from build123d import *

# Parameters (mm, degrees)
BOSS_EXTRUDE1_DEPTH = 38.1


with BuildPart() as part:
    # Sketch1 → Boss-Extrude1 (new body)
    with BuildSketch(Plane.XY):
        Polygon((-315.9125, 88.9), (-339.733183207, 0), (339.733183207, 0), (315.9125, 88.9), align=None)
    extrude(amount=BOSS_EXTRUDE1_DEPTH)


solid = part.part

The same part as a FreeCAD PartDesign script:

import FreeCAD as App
import Part
import Sketcher

V = App.Vector
Q = App.Units.Quantity


def add_polygon(sketch, points):
    """Adds a closed chain of lines whose ends are joined by coincident constraints."""
    first, n = sketch.GeometryCount, len(points)
    for a, b in zip(points, points[1:] + points[:1]):
        sketch.addGeometry(Part.LineSegment(App.Vector(*a, 0), App.Vector(*b, 0)), False)
    for i in range(n):
        sketch.addConstraint(Sketcher.Constraint("Coincident", first + i, 2, first + (i + 1) % n, 1))

doc = App.newDocument("Part")
body = doc.addObject("PartDesign::Body", "Body")

# Sketch on XY plane
sketch1 = body.newObject("Sketcher::SketchObject", "Sketch")
sketch1.AttachmentSupport = (doc.getObject("XY_Plane"), [""])
sketch1.MapMode = "FlatFace"
add_polygon(sketch1, [(-316, 89), (-340, 0), (340, 0), (316, 89)])  # lines 0-3
sketch1.addConstraint([
    Sketcher.Constraint("Horizontal", 1),
    Sketcher.Constraint("Horizontal", 3),
    Sketcher.Constraint("Symmetric", 0, 2, 1, 2, -1, 1),
    Sketcher.Constraint("Equal", 0, 2),
    Sketcher.Constraint("Angle", 0, Q("-105 deg")),
    Sketcher.Constraint("DistanceY", -1, 1, 2, 2, Q("3.5 in")),
    Sketcher.Constraint("DistanceX", 3, 2, 3, 1, Q("24.875 in")),
])
pad1 = body.newObject("PartDesign::Pad", "Pad")
pad1.Profile = sketch1
pad1.Length = Q("1.5 in")

doc.recompute()
